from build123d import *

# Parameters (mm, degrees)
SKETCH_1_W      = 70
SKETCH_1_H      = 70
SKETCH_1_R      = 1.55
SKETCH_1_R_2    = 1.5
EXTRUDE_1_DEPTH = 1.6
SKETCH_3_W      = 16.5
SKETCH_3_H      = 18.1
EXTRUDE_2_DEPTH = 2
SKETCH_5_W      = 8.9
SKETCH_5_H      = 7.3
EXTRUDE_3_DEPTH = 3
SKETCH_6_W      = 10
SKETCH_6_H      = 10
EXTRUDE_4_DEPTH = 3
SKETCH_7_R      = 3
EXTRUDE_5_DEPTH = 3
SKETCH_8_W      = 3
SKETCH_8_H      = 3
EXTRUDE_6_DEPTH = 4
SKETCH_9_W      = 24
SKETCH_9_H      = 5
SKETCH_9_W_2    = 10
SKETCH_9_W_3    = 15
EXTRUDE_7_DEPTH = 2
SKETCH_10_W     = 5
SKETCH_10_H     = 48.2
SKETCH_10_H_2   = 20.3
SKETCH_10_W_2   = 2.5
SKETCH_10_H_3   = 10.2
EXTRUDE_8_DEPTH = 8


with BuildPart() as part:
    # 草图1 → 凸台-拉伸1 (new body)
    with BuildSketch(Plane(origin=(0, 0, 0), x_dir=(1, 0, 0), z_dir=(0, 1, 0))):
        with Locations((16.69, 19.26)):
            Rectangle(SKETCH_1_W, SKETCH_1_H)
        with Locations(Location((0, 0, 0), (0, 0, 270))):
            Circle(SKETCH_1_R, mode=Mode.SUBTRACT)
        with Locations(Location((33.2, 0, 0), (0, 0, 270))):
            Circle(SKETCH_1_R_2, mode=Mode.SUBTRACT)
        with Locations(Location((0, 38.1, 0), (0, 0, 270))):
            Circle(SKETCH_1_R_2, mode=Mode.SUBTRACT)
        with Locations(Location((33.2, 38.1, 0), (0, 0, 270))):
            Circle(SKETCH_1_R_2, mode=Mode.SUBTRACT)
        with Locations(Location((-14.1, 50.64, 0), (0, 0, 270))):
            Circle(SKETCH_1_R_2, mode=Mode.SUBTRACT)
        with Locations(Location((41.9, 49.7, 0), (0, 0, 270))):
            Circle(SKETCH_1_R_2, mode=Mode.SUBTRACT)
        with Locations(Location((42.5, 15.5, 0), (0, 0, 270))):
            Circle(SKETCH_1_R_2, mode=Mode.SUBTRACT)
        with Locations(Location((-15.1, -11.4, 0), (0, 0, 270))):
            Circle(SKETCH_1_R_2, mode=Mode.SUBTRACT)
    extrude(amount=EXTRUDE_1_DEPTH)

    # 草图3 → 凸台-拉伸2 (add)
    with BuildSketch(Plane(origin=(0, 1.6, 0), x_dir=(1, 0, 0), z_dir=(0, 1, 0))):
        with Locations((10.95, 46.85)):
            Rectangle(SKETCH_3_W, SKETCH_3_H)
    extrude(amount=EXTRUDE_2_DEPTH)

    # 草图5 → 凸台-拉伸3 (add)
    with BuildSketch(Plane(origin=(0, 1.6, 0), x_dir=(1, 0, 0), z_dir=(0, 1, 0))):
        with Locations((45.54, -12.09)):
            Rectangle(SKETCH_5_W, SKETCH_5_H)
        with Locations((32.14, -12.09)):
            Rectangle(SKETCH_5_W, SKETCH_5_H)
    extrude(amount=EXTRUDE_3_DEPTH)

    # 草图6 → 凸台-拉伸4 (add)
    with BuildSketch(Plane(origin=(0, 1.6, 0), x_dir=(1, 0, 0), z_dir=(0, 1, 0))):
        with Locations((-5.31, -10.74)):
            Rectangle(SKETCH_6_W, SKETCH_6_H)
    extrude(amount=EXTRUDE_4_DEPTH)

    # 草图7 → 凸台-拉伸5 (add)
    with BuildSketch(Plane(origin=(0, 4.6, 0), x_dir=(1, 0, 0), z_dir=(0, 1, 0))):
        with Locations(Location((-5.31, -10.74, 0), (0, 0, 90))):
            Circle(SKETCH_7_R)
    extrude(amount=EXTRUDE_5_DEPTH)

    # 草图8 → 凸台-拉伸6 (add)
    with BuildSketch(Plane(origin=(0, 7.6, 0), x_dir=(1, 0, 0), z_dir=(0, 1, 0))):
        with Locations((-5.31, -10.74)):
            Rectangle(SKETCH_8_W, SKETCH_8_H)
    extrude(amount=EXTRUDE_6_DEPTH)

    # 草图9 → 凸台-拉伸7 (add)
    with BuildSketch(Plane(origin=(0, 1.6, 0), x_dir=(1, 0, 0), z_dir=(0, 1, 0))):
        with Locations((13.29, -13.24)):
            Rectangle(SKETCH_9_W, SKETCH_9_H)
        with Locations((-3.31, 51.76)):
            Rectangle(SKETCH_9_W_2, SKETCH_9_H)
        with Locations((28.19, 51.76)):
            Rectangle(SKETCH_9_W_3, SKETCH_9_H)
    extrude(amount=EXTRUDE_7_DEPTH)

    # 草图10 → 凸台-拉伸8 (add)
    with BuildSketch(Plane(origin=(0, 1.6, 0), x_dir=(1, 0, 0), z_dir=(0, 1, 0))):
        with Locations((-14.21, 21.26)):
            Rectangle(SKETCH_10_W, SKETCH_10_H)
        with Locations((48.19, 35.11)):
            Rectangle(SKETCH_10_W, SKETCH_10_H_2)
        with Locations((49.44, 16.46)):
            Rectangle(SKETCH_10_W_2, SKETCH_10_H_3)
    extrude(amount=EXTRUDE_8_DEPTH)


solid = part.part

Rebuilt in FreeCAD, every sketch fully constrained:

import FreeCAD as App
import Part
import Sketcher
from FreeCAD import Vector

doc = App.newDocument("Part")
body = doc.addObject("PartDesign::Body", "Body")

sketch1 = doc.addObject("Sketcher::SketchObject", "Sketch")
body.addObject(sketch1)
sketch1.AttachmentSupport = (doc.XZ_Plane, [""])
sketch1.MapMode = "FlatFace"
sketch1.addGeometry(Part.LineSegment(Vector(-18.3, -54.3, 0), Vector(-18.3, 15.7, 0)), False)
sketch1.addGeometry(Part.LineSegment(Vector(-18.3, 15.7, 0), Vector(51.7, 15.7, 0)), False)
sketch1.addGeometry(Part.LineSegment(Vector(51.7, 15.7, 0), Vector(51.7, -54.3, 0)), False)
sketch1.addGeometry(Part.LineSegment(Vector(51.7, -54.3, 0), Vector(-18.3, -54.3, 0)), False)
sketch1.addGeometry(Part.Circle(Vector(-15.1, 11.4, 0), Vector(0, 0, 1), 1.5), False)
sketch1.addGeometry(Part.Circle(Vector(0, 0, 0), Vector(0, 0, 1), 1.6), False)
sketch1.addGeometry(Part.Circle(Vector(33.2, 0, 0), Vector(0, 0, 1), 1.5), False)
sketch1.addGeometry(Part.Circle(Vector(42.5, -15.5, 0), Vector(0, 0, 1), 1.5), False)
sketch1.addGeometry(Part.Circle(Vector(-14.1, -50.6, 0), Vector(0, 0, 1), 1.5), False)
sketch1.addGeometry(Part.Circle(Vector(0, -38.1, 0), Vector(0, 0, 1), 1.5), False)
sketch1.addGeometry(Part.Circle(Vector(33.2, -38.1, 0), Vector(0, 0, 1), 1.5), False)
sketch1.addGeometry(Part.Circle(Vector(41.9, -49.7, 0), Vector(0, 0, 1), 1.5), False)
sketch1.addConstraint(Sketcher.Constraint("Coincident", 0, 2, 1, 1))
sketch1.addConstraint(Sketcher.Constraint("Coincident", 1, 2, 2, 1))
sketch1.addConstraint(Sketcher.Constraint("Coincident", 2, 2, 3, 1))
sketch1.addConstraint(Sketcher.Constraint("Coincident", 3, 2, 0, 1))
sketch1.addConstraint(Sketcher.Constraint("Vertical", 0))
sketch1.addConstraint(Sketcher.Constraint("Horizontal", 1))
sketch1.addConstraint(Sketcher.Constraint("Vertical", 2))
sketch1.addConstraint(Sketcher.Constraint("Horizontal", 3))
sketch1.addConstraint(Sketcher.Constraint("Coincident", 5, 3, -1, 1))
sketch1.addConstraint(Sketcher.Constraint("Equal", 4, 6))
sketch1.addConstraint(Sketcher.Constraint("Equal", 6, 7))
sketch1.addConstraint(Sketcher.Constraint("Equal", 7, 8))
sketch1.addConstraint(Sketcher.Constraint("Equal", 8, 9))
sketch1.addConstraint(Sketcher.Constraint("Equal", 9, 10))
sketch1.addConstraint(Sketcher.Constraint("Equal", 10, 11))
sketch1.addConstraint(Sketcher.Constraint("PointOnObject", 6, 3, -1))
sketch1.addConstraint(Sketcher.Constraint("PointOnObject", 9, 3, -2))
sketch1.addConstraint(Sketcher.Constraint("Horizontal", 9, 3, 10, 3))
sketch1.addConstraint(Sketcher.Constraint("Vertical", 6, 3, 10, 3))
sketch1.addConstraint(Sketcher.Constraint("Equal", 3, 0))
sketch1.addConstraint(Sketcher.Constraint("Diameter", 4, 3.0))
sketch1.addConstraint(Sketcher.Constraint("Diameter", 5, 3.1))
sketch1.addConstraint(Sketcher.Constraint("DistanceX", 1, 1, 1, 2, 70.0))
sketch1.addConstraint(Sketcher.Constraint("DistanceX", 4, 3, 8, 3, 1.0))
sketch1.addConstraint(Sketcher.Constraint("DistanceX", 8, 3, 11, 3, 56.0))
sketch1.addConstraint(Sketcher.Constraint("DistanceX", 4, 3, -1, 1, 15.1))
sketch1.addConstraint(Sketcher.Constraint("DistanceY", -1, 1, 4, 3, 11.4))
sketch1.addConstraint(Sketcher.Constraint("DistanceX", -1, 1, 6, 3, 33.2))
sketch1.addConstraint(Sketcher.Constraint("DistanceX", -1, 1, 7, 3, 42.5))
sketch1.addConstraint(Sketcher.Constraint("DistanceY", 7, 3, -1, 1, 15.5))
sketch1.addConstraint(Sketcher.Constraint("DistanceY", 9, 3, -1, 1, 38.1))
sketch1.addConstraint(Sketcher.Constraint("DistanceY", 11, 3, -1, 1, 49.7))
sketch1.addConstraint(Sketcher.Constraint("DistanceY", 8, 3, -1, 1, 50.64))
sketch1.addConstraint(Sketcher.Constraint("DistanceX", 0, 2, -1, 1, 18.31))
sketch1.addConstraint(Sketcher.Constraint("DistanceY", -1, 1, 0, 2, 15.74))
pad1 = doc.addObject("PartDesign::Pad", "Pad")
body.addObject(pad1)
pad1.Profile = sketch1
pad1.Length = 1.6
pad1.Reversed = True

sketch2 = doc.addObject("Sketcher::SketchObject", "Sketch001")
body.addObject(sketch2)
sketch2.AttachmentSupport = (doc.XZ_Plane, [""])
sketch2.MapMode = "FlatFace"
sketch2.AttachmentOffset = App.Placement(Vector(0, 0, -1.6), App.Rotation())
sketch2.addGeometry(Part.LineSegment(Vector(3, -56, 0), Vector(3, -38, 0)), False)
sketch2.addGeometry(Part.LineSegment(Vector(3, -38, 0), Vector(19, -38, 0)), False)
sketch2.addGeometry(Part.LineSegment(Vector(19, -38, 0), Vector(19, -56, 0)), False)
sketch2.addGeometry(Part.LineSegment(Vector(19, -56, 0), Vector(3, -56, 0)), False)
sketch2.addConstraint(Sketcher.Constraint("Coincident", 0, 2, 1, 1))
sketch2.addConstraint(Sketcher.Constraint("Coincident", 1, 2, 2, 1))
sketch2.addConstraint(Sketcher.Constraint("Coincident", 2, 2, 3, 1))
sketch2.addConstraint(Sketcher.Constraint("Coincident", 3, 2, 0, 1))
sketch2.addConstraint(Sketcher.Constraint("Vertical", 0))
sketch2.addConstraint(Sketcher.Constraint("Horizontal", 1))
sketch2.addConstraint(Sketcher.Constraint("Vertical", 2))
sketch2.addConstraint(Sketcher.Constraint("Horizontal", 3))
sketch2.addConstraint(Sketcher.Constraint("DistanceX", 1, 1, 1, 2, 16.5))
sketch2.addConstraint(Sketcher.Constraint("DistanceY", 0, 1, 0, 2, 18.1))
sketch2.addConstraint(Sketcher.Constraint("DistanceX", -1, 1, 0, 2, 2.7))
sketch2.addConstraint(Sketcher.Constraint("DistanceY", 0, 2, -1, 1, 37.8))
pad2 = doc.addObject("PartDesign::Pad", "Pad001")
body.addObject(pad2)
pad2.Profile = sketch2
pad2.Length = 2
pad2.Reversed = True

sketch3 = doc.addObject("Sketcher::SketchObject", "Sketch002")
body.addObject(sketch3)
sketch3.AttachmentSupport = (doc.XZ_Plane, [""])
sketch3.MapMode = "FlatFace"
sketch3.AttachmentOffset = App.Placement(Vector(0, 0, -1.6), App.Rotation())
sketch3.addGeometry(Part.LineSegment(Vector(41, 8, 0), Vector(41, 16, 0)), False)
sketch3.addGeometry(Part.LineSegment(Vector(41, 16, 0), Vector(50, 16, 0)), False)
sketch3.addGeometry(Part.LineSegment(Vector(50, 16, 0), Vector(50, 8, 0)), False)
sketch3.addGeometry(Part.LineSegment(Vector(50, 8, 0), Vector(41, 8, 0)), False)
sketch3.addGeometry(Part.LineSegment(Vector(28, 8, 0), Vector(28, 16, 0)), False)
sketch3.addGeometry(Part.LineSegment(Vector(28, 16, 0), Vector(37, 16, 0)), False)
sketch3.addGeometry(Part.LineSegment(Vector(37, 16, 0), Vector(37, 8, 0)), False)
sketch3.addGeometry(Part.LineSegment(Vector(37, 8, 0), Vector(28, 8, 0)), False)
sketch3.addConstraint(Sketcher.Constraint("Coincident", 0, 2, 1, 1))
sketch3.addConstraint(Sketcher.Constraint("Coincident", 1, 2, 2, 1))
sketch3.addConstraint(Sketcher.Constraint("Coincident", 2, 2, 3, 1))
sketch3.addConstraint(Sketcher.Constraint("Coincident", 3, 2, 0, 1))
sketch3.addConstraint(Sketcher.Constraint("Coincident", 4, 2, 5, 1))
sketch3.addConstraint(Sketcher.Constraint("Coincident", 5, 2, 6, 1))
sketch3.addConstraint(Sketcher.Constraint("Coincident", 6, 2, 7, 1))
sketch3.addConstraint(Sketcher.Constraint("Coincident", 7, 2, 4, 1))
sketch3.addConstraint(Sketcher.Constraint("Vertical", 0))
sketch3.addConstraint(Sketcher.Constraint("Horizontal", 1))
sketch3.addConstraint(Sketcher.Constraint("Vertical", 2))
sketch3.addConstraint(Sketcher.Constraint("Horizontal", 3))
sketch3.addConstraint(Sketcher.Constraint("Vertical", 4))
sketch3.addConstraint(Sketcher.Constraint("Horizontal", 5))
sketch3.addConstraint(Sketcher.Constraint("Vertical", 6))
sketch3.addConstraint(Sketcher.Constraint("Horizontal", 7))
sketch3.addConstraint(Sketcher.Constraint("Horizontal", 1, 2, 4, 2))
sketch3.addConstraint(Sketcher.Constraint("Horizontal", 3, 2, 6, 2))
sketch3.addConstraint(Sketcher.Constraint("Equal", 3, 5))
sketch3.addConstraint(Sketcher.Constraint("DistanceX", 1, 1, 1, 2, 8.9))
sketch3.addConstraint(Sketcher.Constraint("DistanceY", 0, 1, 0, 2, 7.3))
sketch3.addConstraint(Sketcher.Constraint("DistanceX", 4, 2, 0, 2, 13.4))
sketch3.addConstraint(Sketcher.Constraint("DistanceX", -1, 1, 0, 2, 41.09))
sketch3.addConstraint(Sketcher.Constraint("DistanceY", -1, 1, 0, 2, 15.74))
pad3 = doc.addObject("PartDesign::Pad", "Pad002")
body.addObject(pad3)
pad3.Profile = sketch3
pad3.Length = 3
pad3.Reversed = True

sketch4 = doc.addObject("Sketcher::SketchObject", "Sketch003")
body.addObject(sketch4)
sketch4.AttachmentSupport = (doc.XZ_Plane, [""])
sketch4.MapMode = "FlatFace"
sketch4.AttachmentOffset = App.Placement(Vector(0, 0, -1.6), App.Rotation())
sketch4.addGeometry(Part.LineSegment(Vector(-10, 6, 0), Vector(-10, 16, 0)), False)
sketch4.addGeometry(Part.LineSegment(Vector(-10, 16, 0), Vector(0, 16, 0)), False)
sketch4.addGeometry(Part.LineSegment(Vector(0, 16, 0), Vector(0, 6, 0)), False)
sketch4.addGeometry(Part.LineSegment(Vector(0, 6, 0), Vector(-10, 6, 0)), False)
sketch4.addConstraint(Sketcher.Constraint("Coincident", 0, 2, 1, 1))
sketch4.addConstraint(Sketcher.Constraint("Coincident", 1, 2, 2, 1))
sketch4.addConstraint(Sketcher.Constraint("Coincident", 2, 2, 3, 1))
sketch4.addConstraint(Sketcher.Constraint("Coincident", 3, 2, 0, 1))
sketch4.addConstraint(Sketcher.Constraint("Vertical", 0))
sketch4.addConstraint(Sketcher.Constraint("Horizontal", 1))
sketch4.addConstraint(Sketcher.Constraint("Vertical", 2))
sketch4.addConstraint(Sketcher.Constraint("Horizontal", 3))
sketch4.addConstraint(Sketcher.Constraint("Equal", 3, 0))
sketch4.addConstraint(Sketcher.Constraint("DistanceX", 1, 1, 1, 2, 10.0))
sketch4.addConstraint(Sketcher.Constraint("DistanceX", 0, 2, -1, 1, 10.31))
sketch4.addConstraint(Sketcher.Constraint("DistanceY", -1, 1, 0, 2, 15.74))
pad4 = doc.addObject("PartDesign::Pad", "Pad003")
body.addObject(pad4)
pad4.Profile = sketch4
pad4.Length = 3
pad4.Reversed = True

sketch5 = doc.addObject("Sketcher::SketchObject", "Sketch004")
body.addObject(sketch5)
sketch5.AttachmentSupport = (doc.XZ_Plane, [""])
sketch5.MapMode = "FlatFace"
sketch5.AttachmentOffset = App.Placement(Vector(0, 0, -4.6), App.Rotation())
sketch5.addGeometry(Part.Circle(Vector(-5.3, 10.7, 0), Vector(0, 0, 1), 3), False)
sketch5.addConstraint(Sketcher.Constraint("Diameter", 0, 6.0))
sketch5.addConstraint(Sketcher.Constraint("DistanceX", 0, 3, -1, 1, 5.31))
sketch5.addConstraint(Sketcher.Constraint("DistanceY", -1, 1, 0, 3, 10.74))
pad5 = doc.addObject("PartDesign::Pad", "Pad004")
body.addObject(pad5)
pad5.Profile = sketch5
pad5.Length = 3
pad5.Reversed = True

sketch6 = doc.addObject("Sketcher::SketchObject", "Sketch005")
body.addObject(sketch6)
sketch6.AttachmentSupport = (doc.XZ_Plane, [""])
sketch6.MapMode = "FlatFace"
sketch6.AttachmentOffset = App.Placement(Vector(0, 0, -7.6), App.Rotation())
sketch6.addGeometry(Part.LineSegment(Vector(-6.8, 9.2, 0), Vector(-6.8, 12.2, 0)), False)
sketch6.addGeometry(Part.LineSegment(Vector(-6.8, 12.2, 0), Vector(-3.8, 12.2, 0)), False)
sketch6.addGeometry(Part.LineSegment(Vector(-3.8, 12.2, 0), Vector(-3.8, 9.2, 0)), False)
sketch6.addGeometry(Part.LineSegment(Vector(-3.8, 9.2, 0), Vector(-6.8, 9.2, 0)), False)
sketch6.addConstraint(Sketcher.Constraint("Coincident", 0, 2, 1, 1))
sketch6.addConstraint(Sketcher.Constraint("Coincident", 1, 2, 2, 1))
sketch6.addConstraint(Sketcher.Constraint("Coincident", 2, 2, 3, 1))
sketch6.addConstraint(Sketcher.Constraint("Coincident", 3, 2, 0, 1))
sketch6.addConstraint(Sketcher.Constraint("Vertical", 0))
sketch6.addConstraint(Sketcher.Constraint("Horizontal", 1))
sketch6.addConstraint(Sketcher.Constraint("Vertical", 2))
sketch6.addConstraint(Sketcher.Constraint("Horizontal", 3))
sketch6.addConstraint(Sketcher.Constraint("Equal", 3, 0))
sketch6.addConstraint(Sketcher.Constraint("DistanceX", 1, 1, 1, 2, 3.0))
sketch6.addConstraint(Sketcher.Constraint("DistanceX", 0, 2, -1, 1, 6.81))
sketch6.addConstraint(Sketcher.Constraint("DistanceY", -1, 1, 0, 2, 12.24))
pad6 = doc.addObject("PartDesign::Pad", "Pad005")
body.addObject(pad6)
pad6.Profile = sketch6
pad6.Length = 4
pad6.Reversed = True

sketch7 = doc.addObject("Sketcher::SketchObject", "Sketch006")
body.addObject(sketch7)
sketch7.AttachmentSupport = (doc.XZ_Plane, [""])
sketch7.MapMode = "FlatFace"
sketch7.AttachmentOffset = App.Placement(Vector(0, 0, -1.6), App.Rotation())
sketch7.addGeometry(Part.LineSegment(Vector(1, 11, 0), Vector(1, 16, 0)), False)
sketch7.addGeometry(Part.LineSegment(Vector(1, 16, 0), Vector(25, 16, 0)), False)
sketch7.addGeometry(Part.LineSegment(Vector(25, 16, 0), Vector(25, 11, 0)), False)
sketch7.addGeometry(Part.LineSegment(Vector(25, 11, 0), Vector(1, 11, 0)), False)
sketch7.addGeometry(Part.LineSegment(Vector(-8, -54, 0), Vector(-8, -49, 0)), False)
sketch7.addGeometry(Part.LineSegment(Vector(-8, -49, 0), Vector(2, -49, 0)), False)
sketch7.addGeometry(Part.LineSegment(Vector(2, -49, 0), Vector(2, -54, 0)), False)
sketch7.addGeometry(Part.LineSegment(Vector(2, -54, 0), Vector(-8, -54, 0)), False)
sketch7.addGeometry(Part.LineSegment(Vector(21, -54, 0), Vector(21, -49, 0)), False)
sketch7.addGeometry(Part.LineSegment(Vector(21, -49, 0), Vector(36, -49, 0)), False)
sketch7.addGeometry(Part.LineSegment(Vector(36, -49, 0), Vector(36, -54, 0)), False)
sketch7.addGeometry(Part.LineSegment(Vector(36, -54, 0), Vector(21, -54, 0)), False)
sketch7.addConstraint(Sketcher.Constraint("Coincident", 0, 2, 1, 1))
sketch7.addConstraint(Sketcher.Constraint("Coincident", 1, 2, 2, 1))
sketch7.addConstraint(Sketcher.Constraint("Coincident", 2, 2, 3, 1))
sketch7.addConstraint(Sketcher.Constraint("Coincident", 3, 2, 0, 1))
sketch7.addConstraint(Sketcher.Constraint("Coincident", 4, 2, 5, 1))
sketch7.addConstraint(Sketcher.Constraint("Coincident", 5, 2, 6, 1))
sketch7.addConstraint(Sketcher.Constraint("Coincident", 6, 2, 7, 1))
sketch7.addConstraint(Sketcher.Constraint("Coincident", 7, 2, 4, 1))
sketch7.addConstraint(Sketcher.Constraint("Coincident", 8, 2, 9, 1))
sketch7.addConstraint(Sketcher.Constraint("Coincident", 9, 2, 10, 1))
sketch7.addConstraint(Sketcher.Constraint("Coincident", 10, 2, 11, 1))
sketch7.addConstraint(Sketcher.Constraint("Coincident", 11, 2, 8, 1))
sketch7.addConstraint(Sketcher.Constraint("Vertical", 0))
sketch7.addConstraint(Sketcher.Constraint("Horizontal", 1))
sketch7.addConstraint(Sketcher.Constraint("Vertical", 2))
sketch7.addConstraint(Sketcher.Constraint("Horizontal", 3))
sketch7.addConstraint(Sketcher.Constraint("Vertical", 4))
sketch7.addConstraint(Sketcher.Constraint("Horizontal", 5))
sketch7.addConstraint(Sketcher.Constraint("Vertical", 6))
sketch7.addConstraint(Sketcher.Constraint("Horizontal", 7))
sketch7.addConstraint(Sketcher.Constraint("Vertical", 8))
sketch7.addConstraint(Sketcher.Constraint("Horizontal", 9))
sketch7.addConstraint(Sketcher.Constraint("Vertical", 10))
sketch7.addConstraint(Sketcher.Constraint("Horizontal", 11))
sketch7.addConstraint(Sketcher.Constraint("Horizontal", 5, 2, 8, 2))
sketch7.addConstraint(Sketcher.Constraint("Horizontal", 7, 2, 10, 2))
sketch7.addConstraint(Sketcher.Constraint("Equal", 2, 4))
sketch7.addConstraint(Sketcher.Constraint("DistanceX", 1, 1, 1, 2, 24.0))
sketch7.addConstraint(Sketcher.Constraint("DistanceX", 5, 1, 5, 2, 10.0))
sketch7.addConstraint(Sketcher.Constraint("DistanceX", 9, 1, 9, 2, 15.0))
sketch7.addConstraint(Sketcher.Constraint("DistanceY", 0, 1, 0, 2, 5.0))
sketch7.addConstraint(Sketcher.Constraint("DistanceY", 4, 2, 3, 2, 60.0))
sketch7.addConstraint(Sketcher.Constraint("DistanceX", 5, 2, 8, 2, 19.0))
sketch7.addConstraint(Sketcher.Constraint("DistanceX", 4, 2, 3, 2, 9.6))
sketch7.addConstraint(Sketcher.Constraint("DistanceX", -1, 1, 0, 2, 1.29))
sketch7.addConstraint(Sketcher.Constraint("DistanceY", -1, 1, 0, 2, 15.74))
pad7 = doc.addObject("PartDesign::Pad", "Pad006")
body.addObject(pad7)
pad7.Profile = sketch7
pad7.Length = 2
pad7.Reversed = True

sketch8 = doc.addObject("Sketcher::SketchObject", "Sketch007")
body.addObject(sketch8)
sketch8.AttachmentSupport = (doc.XZ_Plane, [""])
sketch8.MapMode = "FlatFace"
sketch8.AttachmentOffset = App.Placement(Vector(0, 0, -1.6), App.Rotation())
sketch8.addGeometry(Part.LineSegment(Vector(-16.7, -45.4, 0), Vector(-16.7, 2.8, 0)), False)
sketch8.addGeometry(Part.LineSegment(Vector(-16.7, 2.8, 0), Vector(-11.7, 2.8, 0)), False)
sketch8.addGeometry(Part.LineSegment(Vector(-11.7, 2.8, 0), Vector(-11.7, -45.4, 0)), False)
sketch8.addGeometry(Part.LineSegment(Vector(-11.7, -45.4, 0), Vector(-16.7, -45.4, 0)), False)
sketch8.addGeometry(Part.LineSegment(Vector(45.7, -45.3, 0), Vector(45.7, -25, 0)), False)
sketch8.addGeometry(Part.LineSegment(Vector(45.7, -25, 0), Vector(50.7, -25, 0)), False)
sketch8.addGeometry(Part.LineSegment(Vector(50.7, -25, 0), Vector(50.7, -45.3, 0)), False)
sketch8.addGeometry(Part.LineSegment(Vector(50.7, -45.3, 0), Vector(45.7, -45.3, 0)), False)
sketch8.addGeometry(Part.LineSegment(Vector(48.2, -21.6, 0), Vector(48.2, -11.4, 0)), False)
sketch8.addGeometry(Part.LineSegment(Vector(48.2, -11.4, 0), Vector(50.7, -11.4, 0)), False)
sketch8.addGeometry(Part.LineSegment(Vector(50.7, -11.4, 0), Vector(50.7, -21.6, 0)), False)
sketch8.addGeometry(Part.LineSegment(Vector(50.7, -21.6, 0), Vector(48.2, -21.6, 0)), False)
sketch8.addConstraint(Sketcher.Constraint("Coincident", 0, 2, 1, 1))
sketch8.addConstraint(Sketcher.Constraint("Coincident", 1, 2, 2, 1))
sketch8.addConstraint(Sketcher.Constraint("Coincident", 2, 2, 3, 1))
sketch8.addConstraint(Sketcher.Constraint("Coincident", 3, 2, 0, 1))
sketch8.addConstraint(Sketcher.Constraint("Coincident", 4, 2, 5, 1))
sketch8.addConstraint(Sketcher.Constraint("Coincident", 5, 2, 6, 1))
sketch8.addConstraint(Sketcher.Constraint("Coincident", 6, 2, 7, 1))
sketch8.addConstraint(Sketcher.Constraint("Coincident", 7, 2, 4, 1))
sketch8.addConstraint(Sketcher.Constraint("Coincident", 8, 2, 9, 1))
sketch8.addConstraint(Sketcher.Constraint("Coincident", 9, 2, 10, 1))
sketch8.addConstraint(Sketcher.Constraint("Coincident", 10, 2, 11, 1))
sketch8.addConstraint(Sketcher.Constraint("Coincident", 11, 2, 8, 1))
sketch8.addConstraint(Sketcher.Constraint("Vertical", 0))
sketch8.addConstraint(Sketcher.Constraint("Horizontal", 1))
sketch8.addConstraint(Sketcher.Constraint("Vertical", 2))
sketch8.addConstraint(Sketcher.Constraint("Horizontal", 3))
sketch8.addConstraint(Sketcher.Constraint("Vertical", 4))
sketch8.addConstraint(Sketcher.Constraint("Horizontal", 5))
sketch8.addConstraint(Sketcher.Constraint("Vertical", 6))
sketch8.addConstraint(Sketcher.Constraint("Horizontal", 7))
sketch8.addConstraint(Sketcher.Constraint("Vertical", 8))
sketch8.addConstraint(Sketcher.Constraint("Horizontal", 9))
sketch8.addConstraint(Sketcher.Constraint("Vertical", 10))
sketch8.addConstraint(Sketcher.Constraint("Horizontal", 11))
sketch8.addConstraint(Sketcher.Constraint("Vertical", 6, 2, 9, 2))
sketch8.addConstraint(Sketcher.Constraint("Equal", 3, 5))
sketch8.addConstraint(Sketcher.Constraint("DistanceX", 1, 1, 1, 2, 5.0))
sketch8.addConstraint(Sketcher.Constraint("DistanceX", 9, 1, 9, 2, 2.5))
sketch8.addConstraint(Sketcher.Constraint("DistanceY", 0, 1, 0, 2, 48.2))
sketch8.addConstraint(Sketcher.Constraint("DistanceY", 4, 1, 4, 2, 20.3))
sketch8.addConstraint(Sketcher.Constraint("DistanceY", 8, 1, 8, 2, 10.2))
sketch8.addConstraint(Sketcher.Constraint("DistanceX", 2, 2, 4, 2, 57.4))
sketch8.addConstraint(Sketcher.Constraint("DistanceY", 2, 2, 4, 2, 20.4))
sketch8.addConstraint(Sketcher.Constraint("DistanceY", 4, 2, 8, 2, 13.6))
sketch8.addConstraint(Sketcher.Constraint("DistanceX", 0, 2, -1, 1, 16.71))
sketch8.addConstraint(Sketcher.Constraint("DistanceY", -1, 1, 0, 2, 2.84))
pad8 = doc.addObject("PartDesign::Pad", "Pad007")
body.addObject(pad8)
pad8.Profile = sketch8
pad8.Length = 8
pad8.Reversed = True

doc.recompute()
